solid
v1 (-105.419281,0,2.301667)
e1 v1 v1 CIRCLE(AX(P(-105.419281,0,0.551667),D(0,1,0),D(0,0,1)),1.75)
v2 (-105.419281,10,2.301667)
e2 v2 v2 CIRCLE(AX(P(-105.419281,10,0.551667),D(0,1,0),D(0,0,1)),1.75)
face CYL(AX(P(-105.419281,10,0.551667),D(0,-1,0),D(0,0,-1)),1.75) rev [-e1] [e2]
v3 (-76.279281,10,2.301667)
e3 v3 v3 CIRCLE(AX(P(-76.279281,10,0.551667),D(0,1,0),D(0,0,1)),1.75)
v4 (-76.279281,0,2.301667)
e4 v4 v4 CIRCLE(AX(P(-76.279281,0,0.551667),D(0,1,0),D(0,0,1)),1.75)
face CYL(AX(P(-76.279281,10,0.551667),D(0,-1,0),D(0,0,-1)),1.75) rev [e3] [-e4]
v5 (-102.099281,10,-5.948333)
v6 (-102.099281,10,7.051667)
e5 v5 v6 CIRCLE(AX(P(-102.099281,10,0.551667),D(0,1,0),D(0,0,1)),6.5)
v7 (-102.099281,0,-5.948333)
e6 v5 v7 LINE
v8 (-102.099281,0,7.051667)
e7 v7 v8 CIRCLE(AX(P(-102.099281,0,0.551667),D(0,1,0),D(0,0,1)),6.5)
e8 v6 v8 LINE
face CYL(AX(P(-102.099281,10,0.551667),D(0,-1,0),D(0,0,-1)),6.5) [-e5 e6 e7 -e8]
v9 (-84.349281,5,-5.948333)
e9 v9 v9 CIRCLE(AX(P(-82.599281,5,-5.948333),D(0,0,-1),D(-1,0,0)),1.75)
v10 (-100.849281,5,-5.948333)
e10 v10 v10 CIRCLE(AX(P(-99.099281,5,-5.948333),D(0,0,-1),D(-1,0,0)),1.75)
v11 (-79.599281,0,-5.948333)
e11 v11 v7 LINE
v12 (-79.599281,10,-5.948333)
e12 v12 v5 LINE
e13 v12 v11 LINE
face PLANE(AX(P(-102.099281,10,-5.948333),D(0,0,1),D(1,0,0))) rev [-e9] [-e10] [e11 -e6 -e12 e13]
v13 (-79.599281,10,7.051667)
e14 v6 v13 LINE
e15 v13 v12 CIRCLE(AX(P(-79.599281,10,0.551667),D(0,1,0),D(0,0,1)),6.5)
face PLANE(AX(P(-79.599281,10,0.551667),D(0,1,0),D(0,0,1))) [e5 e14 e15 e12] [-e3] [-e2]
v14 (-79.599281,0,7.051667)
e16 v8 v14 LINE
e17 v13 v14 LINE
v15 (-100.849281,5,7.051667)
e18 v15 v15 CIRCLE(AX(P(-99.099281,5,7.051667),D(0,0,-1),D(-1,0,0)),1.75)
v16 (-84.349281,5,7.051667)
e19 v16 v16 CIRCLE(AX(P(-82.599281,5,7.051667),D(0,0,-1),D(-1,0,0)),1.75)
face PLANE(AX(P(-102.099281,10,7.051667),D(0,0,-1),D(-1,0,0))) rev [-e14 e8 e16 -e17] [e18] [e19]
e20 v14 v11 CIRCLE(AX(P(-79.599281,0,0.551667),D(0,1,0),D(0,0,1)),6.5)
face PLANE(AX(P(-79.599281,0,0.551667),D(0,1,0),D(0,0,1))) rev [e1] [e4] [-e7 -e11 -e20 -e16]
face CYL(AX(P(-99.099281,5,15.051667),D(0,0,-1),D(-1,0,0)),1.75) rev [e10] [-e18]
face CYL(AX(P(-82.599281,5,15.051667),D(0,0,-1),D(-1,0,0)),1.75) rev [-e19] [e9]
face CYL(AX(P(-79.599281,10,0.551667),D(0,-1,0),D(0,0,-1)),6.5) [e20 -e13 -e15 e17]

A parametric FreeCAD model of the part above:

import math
import FreeCAD as App
import Part
import Sketcher
Q = App.Units.Quantity

doc = App.newDocument("Part")
body = doc.addObject("PartDesign::Body", "Body")

sketch1 = body.newObject("Sketcher::SketchObject", "Sketch")
sketch1.AttachmentSupport = (doc.getObject("XZ_Plane"), [""])
sketch1.MapMode = "FlatFace"
sketch1.addGeometry(Part.LineSegment(App.Vector(-79.599281, -5.948333, 0), App.Vector(-102.099281, -5.948333, 0)), False)
sketch1.addGeometry(Part.ArcOfCircle(Part.Circle(App.Vector(-102.099281, 0.551667, 0), App.Vector(0, 0, 1), 6.5), math.radians(90), math.radians(270)), False)
sketch1.addGeometry(Part.LineSegment(App.Vector(-102.099281, 7.051667, 0), App.Vector(-79.599281, 7.051667, 0)), False)
sketch1.addGeometry(Part.ArcOfCircle(Part.Circle(App.Vector(-79.599281, 0.551667, 0), App.Vector(0, 0, 1), 6.5), math.radians(-90), math.radians(90)), False)
sketch1.addGeometry(Part.Circle(App.Vector(-76.279281, 0.551667, 0), App.Vector(0, 0, 1), 1.75), False)
sketch1.addGeometry(Part.Circle(App.Vector(-105.419281, 0.551667, 0), App.Vector(0, 0, 1), 1.75), False)
sketch1.addConstraint(Sketcher.Constraint("Tangent", 0, 2, 1, 2))
sketch1.addConstraint(Sketcher.Constraint("Tangent", 1, 1, 2, 1))
sketch1.addConstraint(Sketcher.Constraint("Tangent", 2, 2, 3, 2))
sketch1.addConstraint(Sketcher.Constraint("Tangent", 3, 1, 0, 1))
sketch1.addConstraint(Sketcher.Constraint("Horizontal", 0))
sketch1.addConstraint(Sketcher.Constraint("Horizontal", 2))
sketch1.addConstraint(Sketcher.Constraint("Equal", 4, 5))
sketch1.addConstraint(Sketcher.Constraint("Horizontal", 3, 3, 4, 3))
sketch1.addConstraint(Sketcher.Constraint("Horizontal", 4, 3, 5, 3))
sketch1.addConstraint(Sketcher.Constraint("Diameter", 4, Q("3.5 mm")))
sketch1.addConstraint(Sketcher.Constraint("Radius", 1, Q("6.5 mm")))
sketch1.addConstraint(Sketcher.Constraint("DistanceX", 0, 2, 0, 1, Q("22.5 mm")))
sketch1.addConstraint(Sketcher.Constraint("DistanceX", 3, 3, 4, 3, Q("3.32 mm")))
sketch1.addConstraint(Sketcher.Constraint("DistanceX", 5, 3, 1, 3, Q("3.32 mm")))
sketch1.addConstraint(Sketcher.Constraint("DistanceX", 1, 3, -1, 1, Q("102.099281 mm")))
sketch1.addConstraint(Sketcher.Constraint("DistanceY", -1, 1, 1, 3, Q("0.551667 mm")))
pad1 = body.newObject("PartDesign::Pad", "Pad")
pad1.Profile = sketch1
pad1.Length = 10
pad1.Reversed = True

sketch2 = body.newObject("Sketcher::SketchObject", "Sketch001")
sketch2.AttachmentSupport = (doc.getObject("XY_Plane"), [""])
sketch2.MapMode = "FlatFace"
sketch2.AttachmentOffset = App.Placement(App.Vector(0, 0, -5.948333), App.Rotation())
sketch2.addGeometry(Part.Circle(App.Vector(-99.099281, 5, 0), App.Vector(0, 0, 1), 1.75), False)
sketch2.addGeometry(Part.Circle(App.Vector(-82.599281, 5, 0), App.Vector(0, 0, 1), 1.75), False)
sketch2.addConstraint(Sketcher.Constraint("Equal", 0, 1))
sketch2.addConstraint(Sketcher.Constraint("Horizontal", 0, 3, 1, 3))
sketch2.addConstraint(Sketcher.Constraint("Diameter", 0, Q("3.5 mm")))
sketch2.addConstraint(Sketcher.Constraint("DistanceY", -1, 1, 0, 3, Q("5 mm")))
sketch2.addConstraint(Sketcher.Constraint("DistanceX", 0, 3, 1, 3, Q("16.5 mm")))
sketch2.addConstraint(Sketcher.Constraint("DistanceX", 0, 3, -1, 1, Q("99.099281 mm")))
pocket1 = body.newObject("PartDesign::Pocket", "Pocket")
pocket1.Profile = sketch2
pocket1.Length = 21
pocket1.Reversed = True

doc.recompute()
